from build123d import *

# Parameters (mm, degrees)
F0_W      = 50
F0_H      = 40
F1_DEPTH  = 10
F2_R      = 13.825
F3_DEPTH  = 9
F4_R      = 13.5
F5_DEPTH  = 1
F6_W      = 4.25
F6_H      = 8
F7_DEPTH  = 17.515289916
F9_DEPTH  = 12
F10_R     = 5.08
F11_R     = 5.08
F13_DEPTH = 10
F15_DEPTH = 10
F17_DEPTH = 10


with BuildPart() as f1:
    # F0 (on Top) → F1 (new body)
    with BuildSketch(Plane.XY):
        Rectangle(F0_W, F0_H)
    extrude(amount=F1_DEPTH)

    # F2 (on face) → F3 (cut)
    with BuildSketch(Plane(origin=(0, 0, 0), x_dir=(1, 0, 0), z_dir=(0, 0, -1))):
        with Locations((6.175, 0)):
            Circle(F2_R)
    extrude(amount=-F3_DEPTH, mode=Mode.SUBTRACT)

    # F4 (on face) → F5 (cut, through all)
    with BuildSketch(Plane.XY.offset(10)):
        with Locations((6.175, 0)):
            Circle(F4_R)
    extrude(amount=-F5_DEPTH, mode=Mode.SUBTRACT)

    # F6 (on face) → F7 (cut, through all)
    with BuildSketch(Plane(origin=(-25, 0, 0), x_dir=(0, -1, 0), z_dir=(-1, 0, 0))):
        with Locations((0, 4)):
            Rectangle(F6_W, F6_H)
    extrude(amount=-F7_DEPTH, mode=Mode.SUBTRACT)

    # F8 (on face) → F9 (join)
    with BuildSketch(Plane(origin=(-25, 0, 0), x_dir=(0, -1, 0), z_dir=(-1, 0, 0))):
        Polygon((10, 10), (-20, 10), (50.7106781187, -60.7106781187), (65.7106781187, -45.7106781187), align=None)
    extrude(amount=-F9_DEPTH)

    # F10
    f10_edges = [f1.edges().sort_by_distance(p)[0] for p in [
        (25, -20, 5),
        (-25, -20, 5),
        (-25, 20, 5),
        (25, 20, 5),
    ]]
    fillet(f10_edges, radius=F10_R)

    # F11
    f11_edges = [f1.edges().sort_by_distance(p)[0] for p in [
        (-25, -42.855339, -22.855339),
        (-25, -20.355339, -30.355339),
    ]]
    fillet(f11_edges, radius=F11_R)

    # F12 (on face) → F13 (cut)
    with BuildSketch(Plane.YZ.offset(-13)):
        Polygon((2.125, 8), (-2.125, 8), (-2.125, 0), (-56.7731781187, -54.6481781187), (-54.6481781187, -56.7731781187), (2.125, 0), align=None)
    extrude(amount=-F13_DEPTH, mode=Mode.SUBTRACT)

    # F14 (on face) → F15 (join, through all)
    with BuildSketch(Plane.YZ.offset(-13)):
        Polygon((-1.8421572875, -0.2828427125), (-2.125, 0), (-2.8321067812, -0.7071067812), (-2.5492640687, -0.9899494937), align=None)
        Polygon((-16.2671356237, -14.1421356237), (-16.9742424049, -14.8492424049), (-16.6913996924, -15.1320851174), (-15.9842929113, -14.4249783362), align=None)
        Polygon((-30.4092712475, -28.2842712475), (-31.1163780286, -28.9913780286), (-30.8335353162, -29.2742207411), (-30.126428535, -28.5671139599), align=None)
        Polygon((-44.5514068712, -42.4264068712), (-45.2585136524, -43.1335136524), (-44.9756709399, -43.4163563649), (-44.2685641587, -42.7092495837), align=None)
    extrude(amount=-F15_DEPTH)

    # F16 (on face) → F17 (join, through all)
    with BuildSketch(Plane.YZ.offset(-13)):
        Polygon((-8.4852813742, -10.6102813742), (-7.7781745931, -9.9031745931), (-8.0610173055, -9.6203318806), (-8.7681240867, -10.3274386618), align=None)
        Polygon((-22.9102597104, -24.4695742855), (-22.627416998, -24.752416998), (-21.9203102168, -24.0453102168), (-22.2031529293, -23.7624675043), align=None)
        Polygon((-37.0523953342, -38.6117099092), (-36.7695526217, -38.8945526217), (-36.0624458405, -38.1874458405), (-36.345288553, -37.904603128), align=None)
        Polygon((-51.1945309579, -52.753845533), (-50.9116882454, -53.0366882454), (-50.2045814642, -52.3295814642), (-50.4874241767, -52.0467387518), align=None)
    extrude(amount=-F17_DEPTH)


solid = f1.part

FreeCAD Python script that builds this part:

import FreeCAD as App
import Part
import Sketcher

V = App.Vector
Q = App.Units.Quantity


def edges_at(feature, points):
    """Names of the edges that pass closest to the given points."""
    edges = feature.Shape.Edges
    near = lambda p: min(range(len(edges)), key=lambda i: edges[i].distToShape(Part.Vertex(*p))[0])
    return sorted({f"Edge{near(p) + 1}" for p in points})

doc = App.newDocument("Part")
body = doc.addObject("PartDesign::Body", "Body")

# Sketch on XY plane
sketch1 = doc.addObject("Sketcher::SketchObject", "Sketch")
body.addObject(sketch1)
sketch1.AttachmentSupport = (doc.XY_Plane, [""])
sketch1.MapMode = "FlatFace"
sketch1.addGeometry(Part.LineSegment(V(-25, 20, 0), V(-25, -20, 0)), False)
sketch1.addGeometry(Part.LineSegment(V(-25, -20, 0), V(25, -20, 0)), False)
sketch1.addGeometry(Part.LineSegment(V(25, -20, 0), V(25, 20, 0)), False)
sketch1.addGeometry(Part.LineSegment(V(25, 20, 0), V(-25, 20, 0)), False)
sketch1.addConstraint(Sketcher.Constraint("Coincident", 0, 2, 1, 1))
sketch1.addConstraint(Sketcher.Constraint("Coincident", 1, 2, 2, 1))
sketch1.addConstraint(Sketcher.Constraint("Coincident", 2, 2, 3, 1))
sketch1.addConstraint(Sketcher.Constraint("Coincident", 3, 2, 0, 1))
sketch1.addConstraint(Sketcher.Constraint("Vertical", 0))
sketch1.addConstraint(Sketcher.Constraint("Horizontal", 1))
sketch1.addConstraint(Sketcher.Constraint("Vertical", 2))
sketch1.addConstraint(Sketcher.Constraint("Horizontal", 3))
sketch1.addConstraint(Sketcher.Constraint("Symmetric", 0, 2, 2, 2, -1, 1))
sketch1.addConstraint(Sketcher.Constraint("DistanceX", 1, 1, 1, 2, Q("50 mm")))
sketch1.addConstraint(Sketcher.Constraint("DistanceY", 0, 2, 0, 1, Q("40 mm")))
pad1 = doc.addObject("PartDesign::Pad", "Pad")
body.addObject(pad1)
pad1.Profile = sketch1
pad1.Length = 10

# Sketch on XY plane
sketch2 = doc.addObject("Sketcher::SketchObject", "Sketch001")
body.addObject(sketch2)
sketch2.AttachmentSupport = (doc.XY_Plane, [""])
sketch2.MapMode = "FlatFace"
sketch2.addGeometry(Part.Circle(V(6, 0, 0), V(0, 0, 1), 14), False)
sketch2.addConstraint(Sketcher.Constraint("PointOnObject", 0, 3, -1))
sketch2.addConstraint(Sketcher.Constraint("Diameter", 0, Q("27.65 mm")))
sketch2.addConstraint(Sketcher.Constraint("DistanceX", -1, 1, 0, 3, Q("6.175 mm")))
pocket1 = doc.addObject("PartDesign::Pocket", "Pocket")
body.addObject(pocket1)
pocket1.Profile = sketch2
pocket1.Length = 9
pocket1.Reversed = True

# Sketch on XY plane
sketch3 = doc.addObject("Sketcher::SketchObject", "Sketch002")
body.addObject(sketch3)
sketch3.AttachmentSupport = (doc.XY_Plane, [""])
sketch3.MapMode = "FlatFace"
sketch3.AttachmentOffset = App.Placement(V(0, 0, 10), App.Rotation())
sketch3.addGeometry(Part.Circle(V(6, 0, 0), V(0, 0, 1), 14), False)
sketch3.addConstraint(Sketcher.Constraint("PointOnObject", 0, 3, -1))
sketch3.addConstraint(Sketcher.Constraint("Diameter", 0, Q("27 mm")))
sketch3.addConstraint(Sketcher.Constraint("DistanceX", -1, 1, 0, 3, Q("6.175 mm")))
pocket2 = doc.addObject("PartDesign::Pocket", "Pocket001")
body.addObject(pocket2)
pocket2.Profile = sketch3
pocket2.Type = "ThroughAll"

# Sketch on YZ plane
sketch4 = doc.addObject("Sketcher::SketchObject", "Sketch003")
body.addObject(sketch4)
sketch4.AttachmentSupport = (doc.YZ_Plane, [""])
sketch4.MapMode = "FlatFace"
sketch4.AttachmentOffset = App.Placement(V(0, 0, -25), App.Rotation())
sketch4.addGeometry(Part.LineSegment(V(2.1, 8, 0), V(2.1, 0, 0)), False)
sketch4.addGeometry(Part.LineSegment(V(2.1, 0, 0), V(-2.1, 0, 0)), False)
sketch4.addGeometry(Part.LineSegment(V(-2.1, 0, 0), V(-2.1, 8, 0)), False)
sketch4.addGeometry(Part.LineSegment(V(-2.1, 8, 0), V(2.1, 8, 0)), False)
sketch4.addConstraint(Sketcher.Constraint("Coincident", 0, 2, 1, 1))
sketch4.addConstraint(Sketcher.Constraint("Coincident", 1, 2, 2, 1))
sketch4.addConstraint(Sketcher.Constraint("Coincident", 2, 2, 3, 1))
sketch4.addConstraint(Sketcher.Constraint("Coincident", 3, 2, 0, 1))
sketch4.addConstraint(Sketcher.Constraint("Vertical", 0))
sketch4.addConstraint(Sketcher.Constraint("Horizontal", 1))
sketch4.addConstraint(Sketcher.Constraint("Vertical", 2))
sketch4.addConstraint(Sketcher.Constraint("Horizontal", 3))
sketch4.addConstraint(Sketcher.Constraint("Symmetric", 0, 2, 1, 2, -1, 1))
sketch4.addConstraint(Sketcher.Constraint("DistanceY", 0, 2, 0, 1, Q("8 mm")))
sketch4.addConstraint(Sketcher.Constraint("DistanceX", 1, 2, 1, 1, Q("4.25 mm")))
pocket3 = doc.addObject("PartDesign::Pocket", "Pocket002")
body.addObject(pocket3)
pocket3.Profile = sketch4
pocket3.Length = 17.51529
pocket3.Reversed = True

# Sketch on YZ plane
sketch5 = doc.addObject("Sketcher::SketchObject", "Sketch004")
body.addObject(sketch5)
sketch5.AttachmentSupport = (doc.YZ_Plane, [""])
sketch5.MapMode = "FlatFace"
sketch5.AttachmentOffset = App.Placement(V(0, 0, -25), App.Rotation())
sketch5.addGeometry(Part.LineSegment(V(-10, 10, 0), V(20, 10, 0)), False)
sketch5.addGeometry(Part.LineSegment(V(20, 10, 0), V(-51, -61, 0)), False)
sketch5.addGeometry(Part.LineSegment(V(-51, -61, 0), V(-66, -46, 0)), False)
sketch5.addGeometry(Part.LineSegment(V(-66, -46, 0), V(-10, 10, 0)), False)
sketch5.addConstraint(Sketcher.Constraint("Coincident", 0, 2, 1, 1))
sketch5.addConstraint(Sketcher.Constraint("Coincident", 1, 2, 2, 1))
sketch5.addConstraint(Sketcher.Constraint("Coincident", 2, 2, 3, 1))
sketch5.addConstraint(Sketcher.Constraint("Coincident", 3, 2, 0, 1))
sketch5.addConstraint(Sketcher.Constraint("Horizontal", 0))
sketch5.addConstraint(Sketcher.Constraint("Perpendicular", 1, 2))
sketch5.addConstraint(Sketcher.Constraint("Perpendicular", 2, 3))
sketch5.addConstraint(Sketcher.Constraint("DistanceX", 0, 1, 0, 2, Q("30 mm")))
sketch5.addConstraint(Sketcher.Constraint("Angle", 1, Q("-135 deg")))
sketch5.addConstraint(Sketcher.Constraint("Distance", 1, Q("100 mm")))
sketch5.addConstraint(Sketcher.Constraint("DistanceX", -1, 1, 0, 2, Q("20 mm")))
sketch5.addConstraint(Sketcher.Constraint("DistanceY", -1, 1, 0, 2, Q("10 mm")))
pad2 = doc.addObject("PartDesign::Pad", "Pad001")
body.addObject(pad2)
pad2.Profile = sketch5
pad2.Length = 12
doc.recompute()

fillet = doc.addObject("PartDesign::Fillet", "Fillet")
body.addObject(fillet)
fillet.Base = (pad2, edges_at(pad2, [
    (25, -20, 5),
    (-25, -20, 5),
    (-25, 20, 5),
    (25, 20, 5),
]))
fillet.Radius = 5.08
doc.recompute()

fillet2 = doc.addObject("PartDesign::Fillet", "Fillet001")
body.addObject(fillet2)
fillet2.Base = (fillet, edges_at(fillet, [(-25, -40.315, -20.315), (-25, -20.355, -30.355)]))
fillet2.Radius = 5.08

# Sketch on YZ plane
sketch6 = doc.addObject("Sketcher::SketchObject", "Sketch005")
body.addObject(sketch6)
sketch6.AttachmentSupport = (doc.YZ_Plane, [""])
sketch6.MapMode = "FlatFace"
sketch6.AttachmentOffset = App.Placement(V(0, 0, -13), App.Rotation())
sketch6.addGeometry(Part.LineSegment(V(2.1, 8, 0), V(-2.1, 8, 0)), False)
sketch6.addGeometry(Part.LineSegment(V(-2.1, 8, 0), V(-2.1, 0, 0)), False)
sketch6.addGeometry(Part.LineSegment(V(-2.1, 0, 0), V(-56.8, -54.6, 0)), False)
sketch6.addGeometry(Part.LineSegment(V(-56.8, -54.6, 0), V(-54.6, -56.8, 0)), False)
sketch6.addGeometry(Part.LineSegment(V(-54.6, -56.8, 0), V(2.1, 0, 0)), False)
sketch6.addGeometry(Part.LineSegment(V(2.1, 0, 0), V(2.1, 8, 0)), False)
sketch6.addConstraint(Sketcher.Constraint("Coincident", 0, 2, 1, 1))
sketch6.addConstraint(Sketcher.Constraint("Coincident", 1, 2, 2, 1))
sketch6.addConstraint(Sketcher.Constraint("Coincident", 2, 2, 3, 1))
sketch6.addConstraint(Sketcher.Constraint("Coincident", 3, 2, 4, 1))
sketch6.addConstraint(Sketcher.Constraint("Coincident", 4, 2, 5, 1))
sketch6.addConstraint(Sketcher.Constraint("Coincident", 5, 2, 0, 1))
sketch6.addConstraint(Sketcher.Constraint("Horizontal", 0))
sketch6.addConstraint(Sketcher.Constraint("Vertical", 1))
sketch6.addConstraint(Sketcher.Constraint("Vertical", 5))
sketch6.addConstraint(Sketcher.Constraint("Symmetric", 1, 2, 4, 2, -1, 1))
sketch6.addConstraint(Sketcher.Constraint("PointOnObject", 1, 2, -1))
sketch6.addConstraint(Sketcher.Constraint("Perpendicular", 2, 3))
sketch6.addConstraint(Sketcher.Constraint("Perpendicular", 3, 4))
sketch6.addConstraint(Sketcher.Constraint("DistanceY", 1, 2, 1, 1, Q("8 mm")))
sketch6.addConstraint(Sketcher.Constraint("Angle", 2, Q("-135 deg")))
sketch6.addConstraint(Sketcher.Constraint("DistanceX", 0, 2, 0, 1, Q("4.25 mm")))
sketch6.addConstraint(Sketcher.Constraint("Distance", 4, Q("80.289398 mm")))
pocket4 = doc.addObject("PartDesign::Pocket", "Pocket003")
body.addObject(pocket4)
pocket4.Profile = sketch6
pocket4.Length = 10

# Sketch on YZ plane
sketch7 = doc.addObject("Sketcher::SketchObject", "Sketch006")
body.addObject(sketch7)
sketch7.AttachmentSupport = (doc.YZ_Plane, [""])
sketch7.MapMode = "FlatFace"
sketch7.AttachmentOffset = App.Placement(V(0, 0, -13), App.Rotation())
sketch7.addGeometry(Part.LineSegment(V(-1.84, -0.28, 0), V(-2.12, 0, 0)), False)
sketch7.addGeometry(Part.LineSegment(V(-2.12, 0, 0), V(-2.83, -0.71, 0)), False)
sketch7.addGeometry(Part.LineSegment(V(-2.83, -0.71, 0), V(-2.55, -0.99, 0)), False)
sketch7.addGeometry(Part.LineSegment(V(-2.55, -0.99, 0), V(-1.84, -0.28, 0)), False)
sketch7.addGeometry(Part.LineSegment(V(-16.27, -14.14, 0), V(-16.97, -14.85, 0)), False)
sketch7.addGeometry(Part.LineSegment(V(-16.97, -14.85, 0), V(-16.69, -15.13, 0)), False)
sketch7.addGeometry(Part.LineSegment(V(-16.69, -15.13, 0), V(-15.98, -14.42, 0)), False)
sketch7.addGeometry(Part.LineSegment(V(-15.98, -14.42, 0), V(-16.27, -14.14, 0)), False)
sketch7.addGeometry(Part.LineSegment(V(-30.41, -28.28, 0), V(-31.12, -28.99, 0)), False)
sketch7.addGeometry(Part.LineSegment(V(-31.12, -28.99, 0), V(-30.83, -29.27, 0)), False)
sketch7.addGeometry(Part.LineSegment(V(-30.83, -29.27, 0), V(-30.13, -28.57, 0)), False)
sketch7.addGeometry(Part.LineSegment(V(-30.13, -28.57, 0), V(-30.41, -28.28, 0)), False)
sketch7.addGeometry(Part.LineSegment(V(-44.55, -42.43, 0), V(-45.26, -43.13, 0)), False)
sketch7.addGeometry(Part.LineSegment(V(-45.26, -43.13, 0), V(-44.98, -43.42, 0)), False)
sketch7.addGeometry(Part.LineSegment(V(-44.98, -43.42, 0), V(-44.27, -42.71, 0)), False)
sketch7.addGeometry(Part.LineSegment(V(-44.27, -42.71, 0), V(-44.55, -42.43, 0)), False)
sketch7.addConstraint(Sketcher.Constraint("Coincident", 0, 2, 1, 1))
sketch7.addConstraint(Sketcher.Constraint("Coincident", 1, 2, 2, 1))
sketch7.addConstraint(Sketcher.Constraint("Coincident", 2, 2, 3, 1))
sketch7.addConstraint(Sketcher.Constraint("Coincident", 3, 2, 0, 1))
sketch7.addConstraint(Sketcher.Constraint("Coincident", 4, 2, 5, 1))
sketch7.addConstraint(Sketcher.Constraint("Coincident", 5, 2, 6, 1))
sketch7.addConstraint(Sketcher.Constraint("Coincident", 6, 2, 7, 1))
sketch7.addConstraint(Sketcher.Constraint("Coincident", 7, 2, 4, 1))
sketch7.addConstraint(Sketcher.Constraint("Coincident", 8, 2, 9, 1))
sketch7.addConstraint(Sketcher.Constraint("Coincident", 9, 2, 10, 1))
sketch7.addConstraint(Sketcher.Constraint("Coincident", 10, 2, 11, 1))
sketch7.addConstraint(Sketcher.Constraint("Coincident", 11, 2, 8, 1))
sketch7.addConstraint(Sketcher.Constraint("Coincident", 12, 2, 13, 1))
sketch7.addConstraint(Sketcher.Constraint("Coincident", 13, 2, 14, 1))
sketch7.addConstraint(Sketcher.Constraint("Coincident", 14, 2, 15, 1))
sketch7.addConstraint(Sketcher.Constraint("Coincident", 15, 2, 12, 1))
sketch7.addConstraint(Sketcher.Constraint("PointOnObject", 0, 2, -1))
sketch7.addConstraint(Sketcher.Constraint("Perpendicular", 0, 1))
sketch7.addConstraint(Sketcher.Constraint("Perpendicular", 1, 2))
sketch7.addConstraint(Sketcher.Constraint("Perpendicular", 2, 3))
sketch7.addConstraint(Sketcher.Constraint("Parallel", 3, 4))
sketch7.addConstraint(Sketcher.Constraint("Perpendicular", 4, 5))
sketch7.addConstraint(Sketcher.Constraint("Perpendicular", 5, 6))
sketch7.addConstraint(Sketcher.Constraint("Perpendicular", 6, 7))
sketch7.addConstraint(Sketcher.Constraint("Perpendicular", 7, 8))
sketch7.addConstraint(Sketcher.Constraint("Perpendicular", 8, 9))
sketch7.addConstraint(Sketcher.Constraint("Perpendicular", 9, 10))
sketch7.addConstraint(Sketcher.Constraint("Perpendicular", 10, 11))
sketch7.addConstraint(Sketcher.Constraint("Perpendicular", 11, 12))
sketch7.addConstraint(Sketcher.Constraint("Perpendicular", 12, 13))
sketch7.addConstraint(Sketcher.Constraint("Perpendicular", 13, 14))
sketch7.addConstraint(Sketcher.Constraint("Perpendicular", 14, 15))
sketch7.addConstraint(Sketcher.Constraint("Equal", 3, 4))
sketch7.addConstraint(Sketcher.Constraint("Equal", 2, 5))
sketch7.addConstraint(Sketcher.Constraint("Equal", 6, 8))
sketch7.addConstraint(Sketcher.Constraint("Equal", 7, 9))
sketch7.addConstraint(Sketcher.Constraint("Equal", 10, 12))
sketch7.addConstraint(Sketcher.Constraint("Equal", 11, 13))
sketch7.addConstraint(Sketcher.Constraint("Angle", 0, Q("135 deg")))
sketch7.addConstraint(Sketcher.Constraint("Distance", 1, Q("1 mm")))
sketch7.addConstraint(Sketcher.Constraint("Distance", 0, Q("0.4 mm")))
sketch7.addConstraint(Sketcher.Constraint("DistanceX", 0, 2, -1, 1, Q("2.125 mm")))
sketch7.addConstraint(Sketcher.Constraint("DistanceX", 5, 2, -1, 1, Q("16.6914 mm")))
sketch7.addConstraint(Sketcher.Constraint("DistanceY", 4, 2, 3, 2, Q("14.5664 mm")))
sketch7.addConstraint(Sketcher.Constraint("DistanceY", 8, 2, 6, 2, Q("14.5664 mm")))
sketch7.addConstraint(Sketcher.Constraint("DistanceX", 9, 2, 7, 2, Q("14.5664 mm")))
sketch7.addConstraint(Sketcher.Constraint("DistanceY", 12, 2, 10, 2, Q("14.5664 mm")))
sketch7.addConstraint(Sketcher.Constraint("DistanceX", 13, 2, 11, 2, Q("14.5664 mm")))
pad3 = doc.addObject("PartDesign::Pad", "Pad002")
body.addObject(pad3)
pad3.Profile = sketch7
pad3.Type = "UpToLast"
pad3.Reversed = True

# Sketch on YZ plane
sketch8 = doc.addObject("Sketcher::SketchObject", "Sketch007")
body.addObject(sketch8)
sketch8.AttachmentSupport = (doc.YZ_Plane, [""])
sketch8.MapMode = "FlatFace"
sketch8.AttachmentOffset = App.Placement(V(0, 0, -13), App.Rotation())
sketch8.addGeometry(Part.LineSegment(V(-8.49, -10.61, 0), V(-7.78, -9.9, 0)), False)
sketch8.addGeometry(Part.LineSegment(V(-7.78, -9.9, 0), V(-8.06, -9.62, 0)), False)
sketch8.addGeometry(Part.LineSegment(V(-8.06, -9.62, 0), V(-8.77, -10.33, 0)), False)
sketch8.addGeometry(Part.LineSegment(V(-8.77, -10.33, 0), V(-8.49, -10.61, 0)), False)
sketch8.addGeometry(Part.LineSegment(V(-22.91, -24.47, 0), V(-22.63, -24.75, 0)), False)
sketch8.addGeometry(Part.LineSegment(V(-22.63, -24.75, 0), V(-21.92, -24.05, 0)), False)
sketch8.addGeometry(Part.LineSegment(V(-21.92, -24.05, 0), V(-22.2, -23.76, 0)), False)
sketch8.addGeometry(Part.LineSegment(V(-22.2, -23.76, 0), V(-22.91, -24.47, 0)), False)
sketch8.addGeometry(Part.LineSegment(V(-37.05, -38.61, 0), V(-36.77, -38.89, 0)), False)
sketch8.addGeometry(Part.LineSegment(V(-36.77, -38.89, 0), V(-36.06, -38.19, 0)), False)
sketch8.addGeometry(Part.LineSegment(V(-36.06, -38.19, 0), V(-36.35, -37.9, 0)), False)
sketch8.addGeometry(Part.LineSegment(V(-36.35, -37.9, 0), V(-37.05, -38.61, 0)), False)
sketch8.addGeometry(Part.LineSegment(V(-51.19, -52.75, 0), V(-50.91, -53.04, 0)), False)
sketch8.addGeometry(Part.LineSegment(V(-50.91, -53.04, 0), V(-50.2, -52.33, 0)), False)
sketch8.addGeometry(Part.LineSegment(V(-50.2, -52.33, 0), V(-50.49, -52.05, 0)), False)
sketch8.addGeometry(Part.LineSegment(V(-50.49, -52.05, 0), V(-51.19, -52.75, 0)), False)
sketch8.addConstraint(Sketcher.Constraint("Coincident", 0, 2, 1, 1))
sketch8.addConstraint(Sketcher.Constraint("Coincident", 1, 2, 2, 1))
sketch8.addConstraint(Sketcher.Constraint("Coincident", 2, 2, 3, 1))
sketch8.addConstraint(Sketcher.Constraint("Coincident", 3, 2, 0, 1))
sketch8.addConstraint(Sketcher.Constraint("Coincident", 4, 2, 5, 1))
sketch8.addConstraint(Sketcher.Constraint("Coincident", 5, 2, 6, 1))
sketch8.addConstraint(Sketcher.Constraint("Coincident", 6, 2, 7, 1))
sketch8.addConstraint(Sketcher.Constraint("Coincident", 7, 2, 4, 1))
sketch8.addConstraint(Sketcher.Constraint("Coincident", 8, 2, 9, 1))
sketch8.addConstraint(Sketcher.Constraint("Coincident", 9, 2, 10, 1))
sketch8.addConstraint(Sketcher.Constraint("Coincident", 10, 2, 11, 1))
sketch8.addConstraint(Sketcher.Constraint("Coincident", 11, 2, 8, 1))
sketch8.addConstraint(Sketcher.Constraint("Coincident", 12, 2, 13, 1))
sketch8.addConstraint(Sketcher.Constraint("Coincident", 13, 2, 14, 1))
sketch8.addConstraint(Sketcher.Constraint("Coincident", 14, 2, 15, 1))
sketch8.addConstraint(Sketcher.Constraint("Coincident", 15, 2, 12, 1))
sketch8.addConstraint(Sketcher.Constraint("Perpendicular", 0, 1))
sketch8.addConstraint(Sketcher.Constraint("Perpendicular", 1, 2))
sketch8.addConstraint(Sketcher.Constraint("Perpendicular", 2, 3))
sketch8.addConstraint(Sketcher.Constraint("Parallel", 3, 4))
sketch8.addConstraint(Sketcher.Constraint("Perpendicular", 4, 5))
sketch8.addConstraint(Sketcher.Constraint("Perpendicular", 5, 6))
sketch8.addConstraint(Sketcher.Constraint("Perpendicular", 6, 7))
sketch8.addConstraint(Sketcher.Constraint("Perpendicular", 7, 8))
sketch8.addConstraint(Sketcher.Constraint("Perpendicular", 8, 9))
sketch8.addConstraint(Sketcher.Constraint("Perpendicular", 9, 10))
sketch8.addConstraint(Sketcher.Constraint("Perpendicular", 10, 11))
sketch8.addConstraint(Sketcher.Constraint("Perpendicular", 11, 12))
sketch8.addConstraint(Sketcher.Constraint("Perpendicular", 12, 13))
sketch8.addConstraint(Sketcher.Constraint("Perpendicular", 13, 14))
sketch8.addConstraint(Sketcher.Constraint("Perpendicular", 14, 15))
sketch8.addConstraint(Sketcher.Constraint("Equal", 3, 4))
sketch8.addConstraint(Sketcher.Constraint("Equal", 2, 5))
sketch8.addConstraint(Sketcher.Constraint("Equal", 6, 8))
sketch8.addConstraint(Sketcher.Constraint("Equal", 7, 9))
sketch8.addConstraint(Sketcher.Constraint("Equal", 10, 12))
sketch8.addConstraint(Sketcher.Constraint("Equal", 11, 13))
sketch8.addConstraint(Sketcher.Constraint("Angle", 0, Q("45 deg")))
sketch8.addConstraint(Sketcher.Constraint("Distance", 0, Q("1 mm")))
sketch8.addConstraint(Sketcher.Constraint("Distance", 1, Q("0.4 mm")))
sketch8.addConstraint(Sketcher.Constraint("DistanceX", 4, 2, 1, 2, Q("14.5664 mm")))
sketch8.addConstraint(Sketcher.Constraint("DistanceX", 8, 2, 6, 2, Q("14.5664 mm")))
sketch8.addConstraint(Sketcher.Constraint("DistanceX", 12, 2, 10, 2, Q("14.5664 mm")))
sketch8.addConstraint(Sketcher.Constraint("DistanceY", 1, 2, -1, 1, Q("9.620332 mm")))
sketch8.addConstraint(Sketcher.Constraint("DistanceX", 3, 2, -1, 1, Q("8.485281 mm")))
sketch8.addConstraint(Sketcher.Constraint("DistanceY", 5, 2, -1, 1, Q("24.04531 mm")))
sketch8.addConstraint(Sketcher.Constraint("DistanceY", 11, 2, -1, 1, Q("38.61171 mm")))
sketch8.addConstraint(Sketcher.Constraint("DistanceY", 12, 2, -1, 1, Q("53.036688 mm")))
pad4 = doc.addObject("PartDesign::Pad", "Pad003")
body.addObject(pad4)
pad4.Profile = sketch8
pad4.Type = "UpToLast"
pad4.Reversed = True

doc.recompute()
